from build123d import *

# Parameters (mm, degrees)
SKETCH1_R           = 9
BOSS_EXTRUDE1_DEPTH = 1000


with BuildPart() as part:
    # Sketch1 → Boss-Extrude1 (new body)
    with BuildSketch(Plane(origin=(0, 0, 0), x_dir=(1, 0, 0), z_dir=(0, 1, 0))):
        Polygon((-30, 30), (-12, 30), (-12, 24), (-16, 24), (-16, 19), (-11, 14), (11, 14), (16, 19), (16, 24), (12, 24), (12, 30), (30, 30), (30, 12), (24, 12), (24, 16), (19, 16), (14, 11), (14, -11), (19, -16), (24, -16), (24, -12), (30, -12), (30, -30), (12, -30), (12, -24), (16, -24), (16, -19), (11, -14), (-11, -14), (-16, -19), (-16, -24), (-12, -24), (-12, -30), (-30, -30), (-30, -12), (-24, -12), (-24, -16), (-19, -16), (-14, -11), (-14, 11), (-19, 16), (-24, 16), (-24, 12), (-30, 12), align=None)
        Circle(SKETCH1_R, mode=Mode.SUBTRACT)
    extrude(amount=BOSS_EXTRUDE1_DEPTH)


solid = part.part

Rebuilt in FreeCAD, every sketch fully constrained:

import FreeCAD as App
import Part
import Sketcher
from FreeCAD import Vector
Q = App.Units.Quantity


def add_polygon(sketch, points):
    """Adds a closed chain of lines whose ends are joined by coincident constraints."""
    first, n = sketch.GeometryCount, len(points)
    for a, b in zip(points, points[1:] + points[:1]):
        sketch.addGeometry(Part.LineSegment(App.Vector(*a, 0), App.Vector(*b, 0)), False)
    for i in range(n):
        sketch.addConstraint(Sketcher.Constraint("Coincident", first + i, 2, first + (i + 1) % n, 1))

doc = App.newDocument("Part")
params = doc.addObject("Spreadsheet::Sheet", "Params")
for row, (alias, value) in enumerate([
    ("sketch1_diameter", "18 mm"),
    ("sketch1_width", "18 mm"),
    ("sketch1_width2", "6 mm"),
    ("sketch1_width3", "5 mm"),
    ("sketch1_width4", "4 mm"),
    ("pad1_length", "1000 mm"),
], start=1):
    params.set(f"A{row}", alias)
    params.set(f"B{row}", "=" + value)
    params.setAlias(f"B{row}", alias)

body = doc.addObject("PartDesign::Body", "Body")

sketch1 = body.newObject("Sketcher::SketchObject", "Sketch")
sketch1.AttachmentSupport = (doc.getObject("XZ_Plane"), [""])
sketch1.MapMode = "FlatFace"
add_polygon(sketch1, [(-12, -30), (-30, -30), (-30, -12), (-24, -12), (-24, -16), (-19, -16), (-14, -11), (-14, 11), (-19, 16), (-24, 16), (-24, 12), (-30, 12), (-30, 30), (-12, 30), (-12, 24), (-16, 24), (-16, 19), (-11, 14), (11, 14), (16, 19), (16, 24), (12, 24), (12, 30), (30, 30), (30, 12), (24, 12), (24, 16), (19, 16), (14, 11), (14, -11), (19, -16), (24, -16), (24, -12), (30, -12), (30, -30), (12, -30), (12, -24), (16, -24), (16, -19), (11, -14), (-11, -14), (-16, -19), (-16, -24), (-12, -24)])
sketch1.addGeometry(Part.Circle(Vector(0, 0, 0), Vector(0, 0, 1), 9), False)
sketch1.addConstraint([
    Sketcher.Constraint("Horizontal", 0),
    Sketcher.Constraint("Vertical", 1),
    Sketcher.Constraint("Horizontal", 2),
    Sketcher.Constraint("Vertical", 3),
    Sketcher.Constraint("Horizontal", 4),
    Sketcher.Constraint("Vertical", 6),
    Sketcher.Constraint("Horizontal", 8),
    Sketcher.Constraint("Vertical", 9),
    Sketcher.Constraint("Horizontal", 10),
    Sketcher.Constraint("Vertical", 11),
    Sketcher.Constraint("Horizontal", 12),
    Sketcher.Constraint("Vertical", 13),
    Sketcher.Constraint("Horizontal", 14),
    Sketcher.Constraint("Vertical", 15),
    Sketcher.Constraint("Horizontal", 17),
    Sketcher.Constraint("Vertical", 19),
    Sketcher.Constraint("Horizontal", 20),
    Sketcher.Constraint("Vertical", 21),
    Sketcher.Constraint("Horizontal", 22),
    Sketcher.Constraint("Vertical", 23),
    Sketcher.Constraint("Horizontal", 24),
    Sketcher.Constraint("Vertical", 25),
    Sketcher.Constraint("Horizontal", 26),
    Sketcher.Constraint("Vertical", 28),
    Sketcher.Constraint("Horizontal", 30),
    Sketcher.Constraint("Vertical", 31),
    Sketcher.Constraint("Horizontal", 32),
    Sketcher.Constraint("Vertical", 33),
    Sketcher.Constraint("Horizontal", 34),
    Sketcher.Constraint("Vertical", 35),
    Sketcher.Constraint("Horizontal", 36),
    Sketcher.Constraint("Vertical", 37),
    Sketcher.Constraint("Horizontal", 39),
    Sketcher.Constraint("Vertical", 41),
    Sketcher.Constraint("Horizontal", 42),
    Sketcher.Constraint("Vertical", 43),
    Sketcher.Constraint("Coincident", 44, 3, -1, 1),
    Sketcher.Constraint("Symmetric", 0, 2, 22, 2, -1, 1),
    Sketcher.Constraint("Symmetric", 2, 2, 24, 2, -1, 1),
    Sketcher.Constraint("Symmetric", 4, 2, 26, 2, -1, 1),
    Sketcher.Constraint("Symmetric", 5, 2, 27, 2, -1, 1),
    Sketcher.Constraint("Symmetric", 7, 2, 29, 2, -1, 1),
    Sketcher.Constraint("Symmetric", 9, 2, 31, 2, -1, 1),
    Sketcher.Constraint("Symmetric", 11, 2, 33, 2, -1, 1),
    Sketcher.Constraint("Symmetric", 13, 2, 35, 2, -1, 1),
    Sketcher.Constraint("Symmetric", 15, 2, 37, 2, -1, 1),
    Sketcher.Constraint("Symmetric", 16, 2, 38, 2, -1, 1),
    Sketcher.Constraint("Symmetric", 18, 2, 40, 2, -1, 1),
    Sketcher.Constraint("Symmetric", 20, 2, 42, 2, -1, 1),
    Sketcher.Constraint("Symmetric", 15, 2, 18, 2, -2),
    Sketcher.Constraint("Symmetric", 13, 2, 20, 2, -2),
    Sketcher.Constraint("Symmetric", 11, 2, 22, 2, -2),
    Sketcher.Constraint("Symmetric", 9, 2, 24, 2, -2),
    Sketcher.Constraint("Symmetric", 7, 2, 26, 2, -2),
    Sketcher.Constraint("Perpendicular", 5, 7),
    Sketcher.Constraint("Parallel", 7, 16),
    Sketcher.Constraint("Perpendicular", 16, 18),
    Sketcher.Constraint("Perpendicular", 27, 29),
    Sketcher.Constraint("Perpendicular", 38, 40),
    Sketcher.Constraint("Horizontal", 6, 2, 27, 2),
    Sketcher.Constraint("Equal", 34, 1),
    Sketcher.Constraint("Equal", 42, 3),
    Sketcher.Constraint("Equal", 39, 6),
    Sketcher.Constraint("Equal", 32, 13),
    Sketcher.Constraint("Equal", 30, 15),
    Sketcher.Constraint("Equal", 7, 16),
    Sketcher.Constraint("Diameter", 44, Q("18 mm")),
    Sketcher.Constraint("DistanceX", 0, 2, 0, 1, Q("18 mm")),
    Sketcher.Constraint("DistanceX", 2, 1, 2, 2, Q("6 mm")),
    Sketcher.Constraint("DistanceX", 4, 1, 4, 2, Q("5 mm")),
    Sketcher.Constraint("DistanceX", 14, 2, 14, 1, Q("4 mm")),
    Sketcher.Constraint("DistanceX", 17, 1, 17, 2, Q("22 mm")),
    Sketcher.Constraint("DistanceX", 0, 2, -1, 1, Q("30 mm")),
])
sketch1.setExpression("Constraints[110]", "Params.sketch1_diameter")
sketch1.setExpression("Constraints[111]", "Params.sketch1_width")
sketch1.setExpression("Constraints[112]", "Params.sketch1_width2")
sketch1.setExpression("Constraints[113]", "Params.sketch1_width3")
sketch1.setExpression("Constraints[114]", "Params.sketch1_width4")
pad1 = body.newObject("PartDesign::Pad", "Pad")
pad1.Profile = sketch1
pad1.setExpression("Length", "Params.pad1_length")
pad1.Reversed = True

doc.recompute()
